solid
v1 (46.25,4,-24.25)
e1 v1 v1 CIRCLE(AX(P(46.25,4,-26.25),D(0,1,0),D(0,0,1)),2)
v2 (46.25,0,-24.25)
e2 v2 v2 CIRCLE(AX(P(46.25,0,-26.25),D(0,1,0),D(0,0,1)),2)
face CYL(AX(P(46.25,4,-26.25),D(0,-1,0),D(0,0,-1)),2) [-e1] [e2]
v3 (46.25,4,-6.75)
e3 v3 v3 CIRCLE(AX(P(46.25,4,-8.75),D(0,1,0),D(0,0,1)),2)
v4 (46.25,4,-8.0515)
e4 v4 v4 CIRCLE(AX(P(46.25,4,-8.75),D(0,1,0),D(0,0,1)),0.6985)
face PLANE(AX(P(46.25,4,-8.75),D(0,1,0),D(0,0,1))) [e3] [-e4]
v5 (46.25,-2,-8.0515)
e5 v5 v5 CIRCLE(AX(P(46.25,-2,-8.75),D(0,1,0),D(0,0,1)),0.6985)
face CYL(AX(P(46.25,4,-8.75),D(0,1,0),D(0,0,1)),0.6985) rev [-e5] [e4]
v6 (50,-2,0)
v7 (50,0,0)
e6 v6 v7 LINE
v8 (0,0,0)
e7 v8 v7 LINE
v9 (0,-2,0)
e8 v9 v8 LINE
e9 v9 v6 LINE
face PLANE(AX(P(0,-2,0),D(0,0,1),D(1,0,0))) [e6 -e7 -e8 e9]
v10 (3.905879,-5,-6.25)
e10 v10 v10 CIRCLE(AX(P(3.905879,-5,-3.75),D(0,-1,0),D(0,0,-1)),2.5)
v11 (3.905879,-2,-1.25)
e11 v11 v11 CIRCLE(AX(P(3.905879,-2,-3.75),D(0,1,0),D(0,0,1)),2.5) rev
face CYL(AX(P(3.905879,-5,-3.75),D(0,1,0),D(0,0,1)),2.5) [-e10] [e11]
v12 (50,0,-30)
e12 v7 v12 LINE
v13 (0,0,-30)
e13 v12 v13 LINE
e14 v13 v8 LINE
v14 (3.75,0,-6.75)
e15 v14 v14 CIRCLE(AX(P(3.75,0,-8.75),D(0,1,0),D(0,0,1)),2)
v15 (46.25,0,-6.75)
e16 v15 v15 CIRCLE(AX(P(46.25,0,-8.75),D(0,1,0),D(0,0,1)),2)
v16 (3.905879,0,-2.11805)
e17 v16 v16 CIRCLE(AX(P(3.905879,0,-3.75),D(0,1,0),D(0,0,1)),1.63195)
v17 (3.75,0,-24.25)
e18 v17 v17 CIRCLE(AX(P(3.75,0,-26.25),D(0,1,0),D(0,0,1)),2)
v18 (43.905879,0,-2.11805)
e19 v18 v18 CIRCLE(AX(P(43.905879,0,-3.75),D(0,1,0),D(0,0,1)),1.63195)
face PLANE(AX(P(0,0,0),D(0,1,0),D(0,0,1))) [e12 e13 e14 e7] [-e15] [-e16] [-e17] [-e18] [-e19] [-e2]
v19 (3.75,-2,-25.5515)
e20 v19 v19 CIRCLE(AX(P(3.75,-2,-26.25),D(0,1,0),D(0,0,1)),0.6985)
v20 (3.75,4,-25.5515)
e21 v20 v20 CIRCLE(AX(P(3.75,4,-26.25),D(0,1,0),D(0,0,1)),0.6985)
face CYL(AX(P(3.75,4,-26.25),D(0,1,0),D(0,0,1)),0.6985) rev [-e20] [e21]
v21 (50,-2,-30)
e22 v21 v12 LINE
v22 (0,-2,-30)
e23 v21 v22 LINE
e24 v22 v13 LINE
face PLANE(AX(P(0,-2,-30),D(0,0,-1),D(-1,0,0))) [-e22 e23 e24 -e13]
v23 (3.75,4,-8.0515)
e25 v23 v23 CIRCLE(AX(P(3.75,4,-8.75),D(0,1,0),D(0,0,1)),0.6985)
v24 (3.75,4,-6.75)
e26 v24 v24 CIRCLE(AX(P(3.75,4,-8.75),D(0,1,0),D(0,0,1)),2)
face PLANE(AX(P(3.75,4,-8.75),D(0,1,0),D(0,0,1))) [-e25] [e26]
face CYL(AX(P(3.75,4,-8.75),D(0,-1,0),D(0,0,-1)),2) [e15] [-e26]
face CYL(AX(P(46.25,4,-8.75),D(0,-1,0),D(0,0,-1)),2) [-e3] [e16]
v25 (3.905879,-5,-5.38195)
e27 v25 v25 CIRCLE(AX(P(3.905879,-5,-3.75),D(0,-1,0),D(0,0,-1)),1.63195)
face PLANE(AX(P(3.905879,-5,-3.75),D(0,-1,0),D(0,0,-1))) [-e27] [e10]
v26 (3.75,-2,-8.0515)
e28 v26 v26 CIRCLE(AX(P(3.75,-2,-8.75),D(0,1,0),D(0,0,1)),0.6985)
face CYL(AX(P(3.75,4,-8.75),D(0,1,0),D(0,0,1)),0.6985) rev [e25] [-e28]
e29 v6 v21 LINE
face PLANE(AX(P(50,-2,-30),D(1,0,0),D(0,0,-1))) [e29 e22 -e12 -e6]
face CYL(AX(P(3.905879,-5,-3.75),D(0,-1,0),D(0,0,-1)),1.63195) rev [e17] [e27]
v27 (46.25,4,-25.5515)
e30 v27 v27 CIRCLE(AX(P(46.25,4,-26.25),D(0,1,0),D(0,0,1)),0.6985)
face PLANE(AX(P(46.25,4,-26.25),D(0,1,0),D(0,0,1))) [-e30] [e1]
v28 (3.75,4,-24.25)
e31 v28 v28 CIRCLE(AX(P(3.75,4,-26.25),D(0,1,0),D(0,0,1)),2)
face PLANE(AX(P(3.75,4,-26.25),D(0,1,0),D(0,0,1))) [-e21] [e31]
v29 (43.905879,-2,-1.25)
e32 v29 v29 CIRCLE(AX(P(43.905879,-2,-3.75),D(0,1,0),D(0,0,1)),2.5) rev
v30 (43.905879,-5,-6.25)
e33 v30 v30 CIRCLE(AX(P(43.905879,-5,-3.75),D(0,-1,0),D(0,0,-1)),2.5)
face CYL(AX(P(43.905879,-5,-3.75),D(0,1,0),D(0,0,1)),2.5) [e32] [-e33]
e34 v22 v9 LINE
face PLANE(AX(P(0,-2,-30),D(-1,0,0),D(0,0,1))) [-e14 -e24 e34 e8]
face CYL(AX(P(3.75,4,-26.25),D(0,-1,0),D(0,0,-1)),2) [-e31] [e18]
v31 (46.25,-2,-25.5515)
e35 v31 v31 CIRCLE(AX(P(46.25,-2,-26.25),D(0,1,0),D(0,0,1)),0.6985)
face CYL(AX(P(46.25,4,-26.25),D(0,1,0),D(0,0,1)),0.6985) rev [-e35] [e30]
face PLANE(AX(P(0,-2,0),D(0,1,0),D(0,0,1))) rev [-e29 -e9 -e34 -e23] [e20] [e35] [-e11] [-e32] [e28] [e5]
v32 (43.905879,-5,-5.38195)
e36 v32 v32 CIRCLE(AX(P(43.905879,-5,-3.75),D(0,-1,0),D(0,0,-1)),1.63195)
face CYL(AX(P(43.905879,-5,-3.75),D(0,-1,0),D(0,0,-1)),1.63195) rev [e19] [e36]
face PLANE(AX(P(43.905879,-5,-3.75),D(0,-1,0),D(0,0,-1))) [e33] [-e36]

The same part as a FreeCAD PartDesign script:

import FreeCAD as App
import Part
import Sketcher

V = App.Vector
Q = App.Units.Quantity


def add_polygon(sketch, points):
    """Adds a closed chain of lines whose ends are joined by coincident constraints."""
    first, n = sketch.GeometryCount, len(points)
    for a, b in zip(points, points[1:] + points[:1]):
        sketch.addGeometry(Part.LineSegment(App.Vector(*a, 0), App.Vector(*b, 0)), False)
    for i in range(n):
        sketch.addConstraint(Sketcher.Constraint("Coincident", first + i, 2, first + (i + 1) % n, 1))

doc = App.newDocument("Part")
body = doc.addObject("PartDesign::Body", "Body")

# Sketch on XZ plane
sketch1 = body.newObject("Sketcher::SketchObject", "Sketch")
sketch1.AttachmentSupport = (doc.getObject("XZ_Plane"), [""])
sketch1.MapMode = "FlatFace"
sketch1.addGeometry(Part.Circle(V(3.75, -26.25, 0), V(0, 0, 1), 2), False)
sketch1.addConstraint([
    Sketcher.Constraint("Diameter", 0, Q("4 mm")),
    Sketcher.Constraint("DistanceX", -1, 1, 0, 3, Q("3.75 mm")),
    Sketcher.Constraint("DistanceY", 0, 3, -1, 1, Q("26.25 mm")),
])
pad1 = body.newObject("PartDesign::Pad", "Pad")
pad1.Profile = sketch1
pad1.Length = 4
pad1.Reversed = True
body2 = doc.addObject("PartDesign::Body", "Body001")

# Sketch on XZ plane
sketch2 = body2.newObject("Sketcher::SketchObject", "Sketch001")
sketch2.AttachmentSupport = (doc.getObject("XZ_Plane001"), [""])
sketch2.MapMode = "FlatFace"
sketch2.addGeometry(Part.Circle(V(46.25, -26.25, 0), V(0, 0, 1), 2), False)
sketch2.addConstraint([
    Sketcher.Constraint("Diameter", 0, Q("4 mm")),
    Sketcher.Constraint("DistanceX", -1, 1, 0, 3, Q("46.25 mm")),
    Sketcher.Constraint("DistanceY", 0, 3, -1, 1, Q("26.25 mm")),
])
pad2 = body2.newObject("PartDesign::Pad", "Pad001")
pad2.Profile = sketch2
pad2.Length = 4
pad2.Reversed = True
body3 = doc.addObject("PartDesign::Body", "Body002")

# Sketch on XZ plane
sketch3 = body3.newObject("Sketcher::SketchObject", "Sketch002")
sketch3.AttachmentSupport = (doc.getObject("XZ_Plane002"), [""])
sketch3.MapMode = "FlatFace"
sketch3.addGeometry(Part.Circle(V(46.25, -8.75, 0), V(0, 0, 1), 2), False)
sketch3.addConstraint([
    Sketcher.Constraint("Diameter", 0, Q("4 mm")),
    Sketcher.Constraint("DistanceX", -1, 1, 0, 3, Q("46.25 mm")),
    Sketcher.Constraint("DistanceY", 0, 3, -1, 1, Q("8.75 mm")),
])
pad3 = body3.newObject("PartDesign::Pad", "Pad002")
pad3.Profile = sketch3
pad3.Length = 4
pad3.Reversed = True
body4 = doc.addObject("PartDesign::Body", "Body003")

# Sketch on XZ plane
sketch4 = body4.newObject("Sketcher::SketchObject", "Sketch003")
sketch4.AttachmentSupport = (doc.getObject("XZ_Plane003"), [""])
sketch4.MapMode = "FlatFace"
sketch4.addGeometry(Part.Circle(V(3.75, -8.75, 0), V(0, 0, 1), 2), False)
sketch4.addConstraint([
    Sketcher.Constraint("Diameter", 0, Q("4 mm")),
    Sketcher.Constraint("DistanceX", -1, 1, 0, 3, Q("3.75 mm")),
    Sketcher.Constraint("DistanceY", 0, 3, -1, 1, Q("8.75 mm")),
])
pad4 = body4.newObject("PartDesign::Pad", "Pad003")
pad4.Profile = sketch4
pad4.Length = 4
pad4.Reversed = True
body.AllowCompound = True
doc.recompute()

boolean = body.newObject("PartDesign::Boolean", "Boolean")
boolean.Type = "Fuse"
boolean.addObjects([body2])
doc.recompute()

boolean2 = body.newObject("PartDesign::Boolean", "Boolean001")
boolean2.Type = "Fuse"
boolean2.addObjects([body3])
doc.recompute()

boolean3 = body.newObject("PartDesign::Boolean", "Boolean002")
boolean3.Type = "Fuse"
boolean3.addObjects([body4])

# Sketch on XZ plane
sketch5 = body.newObject("Sketcher::SketchObject", "Sketch004")
sketch5.AttachmentSupport = (doc.getObject("XZ_Plane"), [""])
sketch5.MapMode = "FlatFace"
add_polygon(sketch5, [(0, -30), (0, 0), (50, 0), (50, -30)])  # lines 0-3
sketch5.addConstraint([
    Sketcher.Constraint("Vertical", 0),
    Sketcher.Constraint("Horizontal", 1),
    Sketcher.Constraint("Vertical", 2),
    Sketcher.Constraint("Horizontal", 3),
    Sketcher.Constraint("Coincident", 0, 2, -1, 1),
    Sketcher.Constraint("DistanceX", 1, 1, 1, 2, Q("50 mm")),
    Sketcher.Constraint("DistanceY", 0, 1, 0, 2, Q("30 mm")),
])
pad5 = body.newObject("PartDesign::Pad", "Pad004")
pad5.Profile = sketch5
pad5.Length = 2

# Sketch on XZ plane
sketch6 = body.newObject("Sketcher::SketchObject", "Sketch005")
sketch6.AttachmentSupport = (doc.getObject("XZ_Plane"), [""])
sketch6.MapMode = "FlatFace"
sketch6.AttachmentOffset = App.Placement(V(0, 0, -4), App.Rotation())
sketch6.addGeometry([
    Part.Circle(V(3.75, -26.25, 0), V(0, 0, 1), 0.6985),
    Part.Circle(V(46.25, -26.25, 0), V(0, 0, 1), 0.6985),
    Part.Circle(V(46.25, -8.75, 0), V(0, 0, 1), 0.6985),
    Part.Circle(V(3.75, -8.75, 0), V(0, 0, 1), 0.6985),
], False)
sketch6.addConstraint([
    Sketcher.Constraint("Equal", 0, 1),
    Sketcher.Constraint("Equal", 1, 2),
    Sketcher.Constraint("Equal", 2, 3),
    Sketcher.Constraint("Horizontal", 0, 3, 1, 3),
    Sketcher.Constraint("Horizontal", 2, 3, 3, 3),
    Sketcher.Constraint("Vertical", 1, 3, 2, 3),
    Sketcher.Constraint("Vertical", 0, 3, 3, 3),
    Sketcher.Constraint("Diameter", 0, Q("1.397 mm")),
    Sketcher.Constraint("DistanceX", 0, 3, 1, 3, Q("42.5 mm")),
    Sketcher.Constraint("DistanceY", 1, 3, 2, 3, Q("17.5 mm")),
    Sketcher.Constraint("DistanceX", -1, 1, 0, 3, Q("3.75 mm")),
    Sketcher.Constraint("DistanceY", 0, 3, -1, 1, Q("26.25 mm")),
])
doc.recompute()
hole = body.newObject("PartDesign::Hole", "Hole")
hole.Profile = sketch6
hole.ThreadType = "None"
hole.Diameter = 1.397
hole.DepthType = "ThroughAll"
hole.Reversed = True

# Sketch on XZ plane
sketch7 = body.newObject("Sketcher::SketchObject", "Sketch006")
sketch7.AttachmentSupport = (doc.getObject("XZ_Plane"), [""])
sketch7.MapMode = "FlatFace"
sketch7.AttachmentOffset = App.Placement(V(0, 0, 2), App.Rotation())
sketch7.addGeometry([
    Part.Circle(V(3.905879, -3.75, 0), V(0, 0, 1), 2.5),
    Part.Circle(V(43.905879, -3.75, 0), V(0, 0, 1), 2.5),
], False)
sketch7.addConstraint([
    Sketcher.Constraint("Equal", 0, 1),
    Sketcher.Constraint("Horizontal", 0, 3, 1, 3),
    Sketcher.Constraint("Diameter", 0, Q("5 mm")),
    Sketcher.Constraint("DistanceX", 0, 3, 1, 3, Q("40 mm")),
    Sketcher.Constraint("DistanceY", 0, 3, -1, 1, Q("3.75 mm")),
    Sketcher.Constraint("DistanceX", -1, 1, 0, 3, Q("3.905879 mm")),
])
pad6 = body.newObject("PartDesign::Pad", "Pad005")
pad6.Profile = sketch7
pad6.Length = 3

# Sketch on XZ plane
sketch8 = body.newObject("Sketcher::SketchObject", "Sketch007")
sketch8.AttachmentSupport = (doc.getObject("XZ_Plane"), [""])
sketch8.MapMode = "FlatFace"
sketch8.AttachmentOffset = App.Placement(V(0, 0, 5), App.Rotation())
sketch8.addGeometry([
    Part.Circle(V(3.905879, -3.75, 0), V(0, 0, 1), 1.63195),
    Part.Circle(V(43.905879, -3.75, 0), V(0, 0, 1), 1.63195),
], False)
sketch8.addConstraint([
    Sketcher.Constraint("Equal", 0, 1),
    Sketcher.Constraint("Horizontal", 0, 3, 1, 3),
    Sketcher.Constraint("DistanceX", 0, 3, 1, 3, Q("40 mm")),
    Sketcher.Constraint("Diameter", 0, Q("3.2639 mm")),
    Sketcher.Constraint("DistanceY", 0, 3, -1, 1, Q("3.75 mm")),
    Sketcher.Constraint("DistanceX", -1, 1, 0, 3, Q("3.905879 mm")),
])
doc.recompute()
hole2 = body.newObject("PartDesign::Hole", "Hole001")
hole2.Profile = sketch8
hole2.ThreadType = "None"
hole2.Diameter = 3.2639
hole2.DepthType = "ThroughAll"

doc.recompute()
